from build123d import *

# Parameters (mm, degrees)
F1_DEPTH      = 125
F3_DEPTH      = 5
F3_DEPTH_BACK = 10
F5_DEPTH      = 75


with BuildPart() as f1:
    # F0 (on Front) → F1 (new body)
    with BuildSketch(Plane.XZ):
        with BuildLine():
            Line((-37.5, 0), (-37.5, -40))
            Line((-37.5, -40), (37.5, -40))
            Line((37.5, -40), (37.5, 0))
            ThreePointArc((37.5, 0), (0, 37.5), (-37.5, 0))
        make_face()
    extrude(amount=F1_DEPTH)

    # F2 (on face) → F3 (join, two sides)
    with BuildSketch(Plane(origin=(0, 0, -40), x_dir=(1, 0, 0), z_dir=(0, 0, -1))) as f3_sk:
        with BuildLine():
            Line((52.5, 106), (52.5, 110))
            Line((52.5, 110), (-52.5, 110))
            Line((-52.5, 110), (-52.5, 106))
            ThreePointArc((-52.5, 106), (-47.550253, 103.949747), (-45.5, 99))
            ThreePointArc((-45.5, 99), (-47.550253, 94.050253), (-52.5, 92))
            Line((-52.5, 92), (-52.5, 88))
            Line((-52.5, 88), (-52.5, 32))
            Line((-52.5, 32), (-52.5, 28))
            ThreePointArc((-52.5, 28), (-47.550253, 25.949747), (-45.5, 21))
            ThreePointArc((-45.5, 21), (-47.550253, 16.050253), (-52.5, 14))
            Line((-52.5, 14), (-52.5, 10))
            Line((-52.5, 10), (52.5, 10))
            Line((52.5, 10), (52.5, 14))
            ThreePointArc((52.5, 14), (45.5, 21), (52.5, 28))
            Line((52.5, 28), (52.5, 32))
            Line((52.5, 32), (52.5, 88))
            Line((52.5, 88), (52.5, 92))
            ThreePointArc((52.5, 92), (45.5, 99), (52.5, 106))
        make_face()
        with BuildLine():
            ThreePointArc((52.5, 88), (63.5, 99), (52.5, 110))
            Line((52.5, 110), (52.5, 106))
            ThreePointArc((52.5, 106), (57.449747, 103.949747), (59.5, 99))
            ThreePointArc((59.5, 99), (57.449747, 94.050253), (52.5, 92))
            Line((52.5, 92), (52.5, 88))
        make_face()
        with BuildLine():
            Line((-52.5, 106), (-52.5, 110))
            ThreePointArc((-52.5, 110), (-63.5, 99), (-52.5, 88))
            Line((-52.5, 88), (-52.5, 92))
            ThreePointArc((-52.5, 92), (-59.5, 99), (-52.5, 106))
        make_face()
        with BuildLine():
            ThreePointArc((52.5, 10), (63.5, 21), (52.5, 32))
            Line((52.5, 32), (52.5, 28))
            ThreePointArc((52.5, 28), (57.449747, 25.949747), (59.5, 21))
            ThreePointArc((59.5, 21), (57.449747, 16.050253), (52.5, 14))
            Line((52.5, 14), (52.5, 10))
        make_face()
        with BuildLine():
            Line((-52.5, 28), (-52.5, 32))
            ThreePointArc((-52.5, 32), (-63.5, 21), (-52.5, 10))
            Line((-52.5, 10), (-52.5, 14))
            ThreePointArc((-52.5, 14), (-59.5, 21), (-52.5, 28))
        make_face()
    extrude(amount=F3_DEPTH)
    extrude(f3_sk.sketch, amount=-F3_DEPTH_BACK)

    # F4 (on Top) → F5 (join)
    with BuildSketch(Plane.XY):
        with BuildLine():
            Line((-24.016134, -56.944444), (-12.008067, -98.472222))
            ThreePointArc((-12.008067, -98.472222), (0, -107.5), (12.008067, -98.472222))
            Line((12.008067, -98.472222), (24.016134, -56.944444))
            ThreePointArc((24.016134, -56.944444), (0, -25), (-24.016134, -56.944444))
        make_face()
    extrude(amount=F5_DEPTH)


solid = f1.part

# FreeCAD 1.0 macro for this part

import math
import FreeCAD as App
import Part
import Sketcher

V = App.Vector

doc = App.newDocument("Part")
body = doc.addObject("PartDesign::Body", "Body")

# Sketch on XZ plane
sketch1 = body.newObject("Sketcher::SketchObject", "Sketch")
sketch1.AttachmentSupport = (doc.getObject("XZ_Plane"), [""])
sketch1.MapMode = "FlatFace"
sketch1.addGeometry([
    Part.LineSegment(V(-38, 0, 0), V(-38, -40, 0)),
    Part.LineSegment(V(-38, -40, 0), V(38, -40, 0)),
    Part.LineSegment(V(38, -40, 0), V(38, 0, 0)),
    Part.ArcOfCircle(Part.Circle(V(0, 0, 0), V(0, 0, 1), 38), math.radians(0), math.radians(180)),
], False)
sketch1.addConstraint([
    Sketcher.Constraint("Coincident", 0, 2, 1, 1),
    Sketcher.Constraint("Coincident", 1, 2, 2, 1),
    Sketcher.Constraint("Tangent", 2, 2, 3, 1),
    Sketcher.Constraint("Tangent", 3, 2, 0, 1),
    Sketcher.Constraint("Vertical", 0),
    Sketcher.Constraint("Horizontal", 1),
    Sketcher.Constraint("Vertical", 2),
    Sketcher.Constraint("Coincident", 3, 3, -1, 1),
    Sketcher.Constraint("Radius", 3, 37.5),
    Sketcher.Constraint("DistanceY", 0, 2, 0, 1, 40.0),
])
pad1 = body.newObject("PartDesign::Pad", "Pad")
pad1.Profile = sketch1
pad1.Length = 125

# Sketch on XY plane
sketch2 = body.newObject("Sketcher::SketchObject", "Sketch001")
sketch2.AttachmentSupport = (doc.getObject("XY_Plane"), [""])
sketch2.MapMode = "FlatFace"
sketch2.AttachmentOffset = App.Placement(V(0, 0, -40), App.Rotation())
sketch2.addGeometry([
    Part.LineSegment(V(52, -110, 0), V(-52, -110, 0)),  # 0
    Part.ArcOfCircle(Part.Circle(V(-52, -99, 0), V(0, 0, 1), 11), math.radians(90), math.radians(270)),  # 1
    Part.LineSegment(V(-52, -88, 0), V(-52, -32, 0)),  # 2
    Part.ArcOfCircle(Part.Circle(V(-52, -21, 0), V(0, 0, 1), 11), math.radians(90), math.radians(270)),  # 3
    Part.LineSegment(V(-52, -10, 0), V(52, -10, 0)),  # 4
    Part.ArcOfCircle(Part.Circle(V(52, -21, 0), V(0, 0, 1), 11), math.radians(-90), math.radians(90)),  # 5
    Part.LineSegment(V(52, -32, 0), V(52, -88, 0)),  # 6
    Part.ArcOfCircle(Part.Circle(V(52, -99, 0), V(0, 0, 1), 11), math.radians(-90), math.radians(90)),  # 7
    Part.ArcOfCircle(Part.Circle(V(-53, -21, 0), V(0, 0, 1), 7), math.radians(-90), math.radians(0)),  # 8
    Part.ArcOfCircle(Part.Circle(V(-53, -21, 0), V(0, 0, 1), 7), math.radians(0), math.radians(90)),  # 9
    Part.ArcOfCircle(Part.Circle(V(-52, -21, 0), V(0, 0, 1), 7), math.radians(90), math.radians(270)),  # 10
    Part.ArcOfCircle(Part.Circle(V(52, -21, 0), V(0, 0, 1), 7), math.radians(90), math.radians(270)),  # 11
    Part.ArcOfCircle(Part.Circle(V(52, -21, 0), V(0, 0, 1), 7), math.radians(-90), math.radians(0)),  # 12
    Part.ArcOfCircle(Part.Circle(V(52, -21, 0), V(0, 0, 1), 7), math.radians(0), math.radians(90)),  # 13
    Part.ArcOfCircle(Part.Circle(V(-53, -99, 0), V(0, 0, 1), 7), math.radians(-90), math.radians(0)),  # 14
    Part.ArcOfCircle(Part.Circle(V(-53, -99, 0), V(0, 0, 1), 7), math.radians(0), math.radians(90)),  # 15
    Part.ArcOfCircle(Part.Circle(V(-52, -99, 0), V(0, 0, 1), 7), math.radians(90), math.radians(270)),  # 16
    Part.ArcOfCircle(Part.Circle(V(52, -99, 0), V(0, 0, 1), 7), math.radians(90), math.radians(270)),  # 17
    Part.ArcOfCircle(Part.Circle(V(52, -99, 0), V(0, 0, 1), 7), math.radians(-90), math.radians(0)),  # 18
    Part.ArcOfCircle(Part.Circle(V(52, -99, 0), V(0, 0, 1), 7), math.radians(0), math.radians(90)),  # 19
], False)
sketch2.addConstraint([
    Sketcher.Constraint("Tangent", 0, 2, 1, 2),
    Sketcher.Constraint("Coincident", 1, 1, 2, 1),
    Sketcher.Constraint("Coincident", 2, 2, 3, 2),
    Sketcher.Constraint("Tangent", 3, 1, 4, 1),
    Sketcher.Constraint("Tangent", 4, 2, 5, 2),
    Sketcher.Constraint("Coincident", 5, 1, 6, 1),
    Sketcher.Constraint("Coincident", 6, 2, 7, 2),
    Sketcher.Constraint("Tangent", 7, 1, 0, 1),
    Sketcher.Constraint("Tangent", 8, 2, 9, 1),
    Sketcher.Constraint("Tangent", 9, 2, 10, 1),
    Sketcher.Constraint("Tangent", 10, 2, 8, 1),
    Sketcher.Constraint("Tangent", 11, 2, 12, 1),
    Sketcher.Constraint("Tangent", 12, 2, 13, 1),
    Sketcher.Constraint("Tangent", 13, 2, 11, 1),
    Sketcher.Constraint("Tangent", 14, 2, 15, 1),
    Sketcher.Constraint("Tangent", 15, 2, 16, 1),
    Sketcher.Constraint("Tangent", 16, 2, 14, 1),
    Sketcher.Constraint("Tangent", 17, 2, 18, 1),
    Sketcher.Constraint("Tangent", 18, 2, 19, 1),
    Sketcher.Constraint("Tangent", 19, 2, 17, 1),
    Sketcher.Constraint("Horizontal", 0),
    Sketcher.Constraint("Vertical", 2),
    Sketcher.Constraint("Horizontal", 4),
    Sketcher.Constraint("Vertical", 6),
    Sketcher.Constraint("Coincident", 8, 3, 3, 3),
    Sketcher.Constraint("Coincident", 11, 3, 5, 3),
    Sketcher.Constraint("Coincident", 14, 3, 1, 3),
    Sketcher.Constraint("Coincident", 17, 3, 7, 3),
    Sketcher.Constraint("Equal", 1, 3),
    Sketcher.Constraint("Equal", 3, 5),
    Sketcher.Constraint("Equal", 5, 7),
    Sketcher.Constraint("Equal", 10, 11),
    Sketcher.Constraint("Equal", 13, 14),
    Sketcher.Constraint("Equal", 16, 17),
    Sketcher.Constraint("Horizontal", 13, 3, 8, 2),
    Sketcher.Constraint("Horizontal", 8, 2, 12, 2),
    Sketcher.Constraint("Horizontal", 19, 3, 14, 2),
    Sketcher.Constraint("Horizontal", 14, 2, 18, 2),
    Sketcher.Constraint("Vertical", 1, 3, 3, 3),
    Sketcher.Constraint("Vertical", 5, 3, 7, 3),
    Sketcher.Constraint("Vertical", 0, 2, 1, 1),
    Sketcher.Constraint("Vertical", 4, 2, 5, 1),
    Sketcher.Constraint("Vertical", 3, 1, 9, 2),
    Sketcher.Constraint("Vertical", 9, 2, 10, 2),
    Sketcher.Constraint("Vertical", 7, 1, 11, 2),
    Sketcher.Constraint("Vertical", 11, 2, 13, 2),
    Sketcher.Constraint("Vertical", 10, 2, 15, 2),
    Sketcher.Constraint("Vertical", 15, 2, 16, 2),
    Sketcher.Constraint("Vertical", 13, 2, 17, 2),
    Sketcher.Constraint("Vertical", 17, 2, 19, 2),
    Sketcher.Constraint("Radius", 1, 11.0),
    Sketcher.Constraint("Radius", 8, 7.000002),
    Sketcher.Constraint("DistanceX", 0, 2, 0, 1, 105.0),
    Sketcher.Constraint("DistanceY", 2, 1, 2, 2, 56.0),
    Sketcher.Constraint("DistanceY", 1, 3, -1, 1, 99.0),
    Sketcher.Constraint("DistanceX", 1, 3, -1, 1, 52.5),
])
pad2 = body.newObject("PartDesign::Pad", "Pad001")
pad2.Profile = sketch2
pad2.Type = "TwoLengths"
pad2.Length = 5
pad2.Length2 = 10
pad2.Reversed = True

# Sketch on XY plane
sketch3 = body.newObject("Sketcher::SketchObject", "Sketch002")
sketch3.AttachmentSupport = (doc.getObject("XY_Plane"), [""])
sketch3.MapMode = "FlatFace"
sketch3.addGeometry([
    Part.LineSegment(V(-24, -57, 0), V(-12, -98, 0)),
    Part.ArcOfCircle(Part.Circle(V(0, -95, 0), V(0, 0, 1), 12), math.radians(-164), math.radians(-16)),
    Part.LineSegment(V(12, -98, 0), V(24, -57, 0)),
    Part.ArcOfCircle(Part.Circle(V(0, -50, 0), V(0, 0, 1), 25), math.radians(-16), math.radians(196)),
], False)
sketch3.addConstraint([
    Sketcher.Constraint("Tangent", 0, 2, 1, 1),
    Sketcher.Constraint("Tangent", 1, 2, 2, 1),
    Sketcher.Constraint("Tangent", 2, 2, 3, 1),
    Sketcher.Constraint("Tangent", 3, 2, 0, 1),
    Sketcher.Constraint("Symmetric", 0, 2, 1, 2, -2),
    Sketcher.Constraint("Radius", 3, 25.0),
    Sketcher.Constraint("Radius", 1, 12.5),
    Sketcher.Constraint("DistanceY", 1, 3, -1, 1, 95.0),
    Sketcher.Constraint("DistanceY", 3, 3, -1, 1, 50.0),
])
pad3 = body.newObject("PartDesign::Pad", "Pad002")
pad3.Profile = sketch3
pad3.Length = 75

doc.recompute()
